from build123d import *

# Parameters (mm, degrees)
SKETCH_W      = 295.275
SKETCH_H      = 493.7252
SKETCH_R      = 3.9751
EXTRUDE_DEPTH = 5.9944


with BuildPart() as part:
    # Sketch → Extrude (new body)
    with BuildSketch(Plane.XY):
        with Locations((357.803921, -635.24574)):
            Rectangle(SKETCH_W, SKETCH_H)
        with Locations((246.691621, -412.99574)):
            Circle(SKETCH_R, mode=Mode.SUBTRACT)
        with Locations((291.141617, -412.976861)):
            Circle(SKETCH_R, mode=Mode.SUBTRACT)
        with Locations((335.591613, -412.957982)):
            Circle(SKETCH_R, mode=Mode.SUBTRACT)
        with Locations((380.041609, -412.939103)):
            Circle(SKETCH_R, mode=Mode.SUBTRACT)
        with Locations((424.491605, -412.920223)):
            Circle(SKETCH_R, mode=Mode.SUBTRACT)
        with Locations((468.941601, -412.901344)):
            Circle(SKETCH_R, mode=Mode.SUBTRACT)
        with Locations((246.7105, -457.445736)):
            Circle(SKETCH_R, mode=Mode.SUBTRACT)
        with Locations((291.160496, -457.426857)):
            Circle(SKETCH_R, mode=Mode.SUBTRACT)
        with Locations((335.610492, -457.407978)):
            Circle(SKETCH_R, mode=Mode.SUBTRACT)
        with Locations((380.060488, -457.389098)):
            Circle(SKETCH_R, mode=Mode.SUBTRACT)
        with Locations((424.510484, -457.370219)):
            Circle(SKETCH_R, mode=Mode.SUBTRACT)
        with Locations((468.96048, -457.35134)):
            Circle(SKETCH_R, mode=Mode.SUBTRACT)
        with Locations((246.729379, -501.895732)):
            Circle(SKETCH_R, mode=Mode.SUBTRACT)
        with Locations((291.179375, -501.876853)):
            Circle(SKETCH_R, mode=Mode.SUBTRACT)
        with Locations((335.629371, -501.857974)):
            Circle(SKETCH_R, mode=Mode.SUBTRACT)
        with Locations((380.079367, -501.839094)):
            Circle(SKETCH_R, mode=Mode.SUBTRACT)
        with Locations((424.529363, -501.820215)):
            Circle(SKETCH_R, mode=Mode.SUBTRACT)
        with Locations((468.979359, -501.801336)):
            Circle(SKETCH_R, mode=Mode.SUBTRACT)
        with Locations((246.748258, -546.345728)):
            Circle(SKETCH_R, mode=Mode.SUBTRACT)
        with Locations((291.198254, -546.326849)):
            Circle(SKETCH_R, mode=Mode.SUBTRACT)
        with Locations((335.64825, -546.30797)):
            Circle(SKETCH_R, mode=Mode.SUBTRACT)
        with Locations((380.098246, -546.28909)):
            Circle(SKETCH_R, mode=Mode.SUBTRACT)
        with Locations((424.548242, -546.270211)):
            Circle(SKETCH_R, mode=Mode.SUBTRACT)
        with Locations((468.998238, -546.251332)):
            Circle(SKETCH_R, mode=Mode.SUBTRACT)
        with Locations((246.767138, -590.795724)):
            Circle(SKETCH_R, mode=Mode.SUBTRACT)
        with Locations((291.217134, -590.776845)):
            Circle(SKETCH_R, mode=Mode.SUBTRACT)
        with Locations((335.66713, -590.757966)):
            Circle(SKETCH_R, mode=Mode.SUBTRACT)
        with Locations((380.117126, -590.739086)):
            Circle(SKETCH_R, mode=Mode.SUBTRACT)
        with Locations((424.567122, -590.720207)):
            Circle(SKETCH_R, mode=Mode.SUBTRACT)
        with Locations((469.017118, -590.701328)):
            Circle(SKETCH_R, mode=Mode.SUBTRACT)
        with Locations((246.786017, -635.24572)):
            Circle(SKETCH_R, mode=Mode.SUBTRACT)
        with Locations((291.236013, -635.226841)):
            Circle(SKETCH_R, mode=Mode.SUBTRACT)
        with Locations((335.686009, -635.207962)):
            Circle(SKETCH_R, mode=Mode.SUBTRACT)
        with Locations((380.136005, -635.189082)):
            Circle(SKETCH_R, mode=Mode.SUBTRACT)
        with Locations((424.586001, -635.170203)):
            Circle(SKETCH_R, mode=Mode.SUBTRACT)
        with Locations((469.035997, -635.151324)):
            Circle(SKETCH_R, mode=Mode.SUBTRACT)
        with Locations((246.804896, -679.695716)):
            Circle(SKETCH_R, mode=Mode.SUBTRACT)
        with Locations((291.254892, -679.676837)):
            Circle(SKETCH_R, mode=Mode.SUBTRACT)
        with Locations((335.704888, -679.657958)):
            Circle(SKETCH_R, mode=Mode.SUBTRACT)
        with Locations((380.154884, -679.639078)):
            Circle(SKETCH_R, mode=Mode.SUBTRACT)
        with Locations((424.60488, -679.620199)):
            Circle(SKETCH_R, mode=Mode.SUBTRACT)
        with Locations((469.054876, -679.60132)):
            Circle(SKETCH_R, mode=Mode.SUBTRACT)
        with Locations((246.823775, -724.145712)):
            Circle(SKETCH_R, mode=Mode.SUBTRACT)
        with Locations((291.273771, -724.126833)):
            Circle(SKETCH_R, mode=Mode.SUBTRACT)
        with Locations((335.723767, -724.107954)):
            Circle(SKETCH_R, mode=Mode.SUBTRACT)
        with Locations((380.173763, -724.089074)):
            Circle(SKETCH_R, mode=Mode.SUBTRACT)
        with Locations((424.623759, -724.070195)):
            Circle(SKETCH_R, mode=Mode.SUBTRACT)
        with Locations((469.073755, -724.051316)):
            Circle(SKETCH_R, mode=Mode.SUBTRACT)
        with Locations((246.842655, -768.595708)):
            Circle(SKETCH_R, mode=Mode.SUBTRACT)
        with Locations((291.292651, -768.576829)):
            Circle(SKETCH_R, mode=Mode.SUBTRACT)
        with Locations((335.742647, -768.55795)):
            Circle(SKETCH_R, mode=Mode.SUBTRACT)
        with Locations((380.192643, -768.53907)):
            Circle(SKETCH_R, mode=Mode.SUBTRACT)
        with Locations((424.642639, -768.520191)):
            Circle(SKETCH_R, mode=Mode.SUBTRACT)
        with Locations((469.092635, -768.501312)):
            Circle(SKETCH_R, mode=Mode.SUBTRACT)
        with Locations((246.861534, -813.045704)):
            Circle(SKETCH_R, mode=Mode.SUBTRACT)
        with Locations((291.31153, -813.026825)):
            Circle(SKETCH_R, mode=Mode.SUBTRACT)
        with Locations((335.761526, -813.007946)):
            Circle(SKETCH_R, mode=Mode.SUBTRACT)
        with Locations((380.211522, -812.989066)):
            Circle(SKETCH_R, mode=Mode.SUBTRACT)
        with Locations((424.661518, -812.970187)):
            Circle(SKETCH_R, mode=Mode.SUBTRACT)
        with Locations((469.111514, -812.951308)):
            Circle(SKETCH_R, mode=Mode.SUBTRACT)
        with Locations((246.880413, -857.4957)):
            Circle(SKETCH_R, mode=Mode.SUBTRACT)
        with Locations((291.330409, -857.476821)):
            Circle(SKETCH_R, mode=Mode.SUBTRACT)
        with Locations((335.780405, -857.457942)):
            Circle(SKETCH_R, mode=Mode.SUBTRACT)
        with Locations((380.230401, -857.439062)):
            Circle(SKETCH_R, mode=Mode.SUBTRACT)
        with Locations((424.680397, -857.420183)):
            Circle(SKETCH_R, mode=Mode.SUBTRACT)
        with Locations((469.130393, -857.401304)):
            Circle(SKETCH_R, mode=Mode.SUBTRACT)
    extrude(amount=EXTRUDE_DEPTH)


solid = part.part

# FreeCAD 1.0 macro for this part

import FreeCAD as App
import Part
import Sketcher
from FreeCAD import Vector
Q = App.Units.Quantity


def add_polygon(sketch, points):
    """Adds a closed chain of lines whose ends are joined by coincident constraints."""
    first, n = sketch.GeometryCount, len(points)
    for a, b in zip(points, points[1:] + points[:1]):
        sketch.addGeometry(Part.LineSegment(App.Vector(*a, 0), App.Vector(*b, 0)), False)
    for i in range(n):
        sketch.addConstraint(Sketcher.Constraint("Coincident", first + i, 2, first + (i + 1) % n, 1))

doc = App.newDocument("Part")
body = doc.addObject("PartDesign::Body", "Body")

# Sketch on XY plane
sketch1 = body.newObject("Sketcher::SketchObject", "Sketch")
sketch1.AttachmentSupport = (doc.getObject("XY_Plane"), [""])
sketch1.MapMode = "FlatFace"
add_polygon(sketch1, [(210.2, -388.4), (210.2, -882.1), (505.4, -882.1), (505.4, -388.4)])  # lines 0-3
sketch1.addGeometry(Part.Circle(Vector(246.9, -857.5, 0), Vector(0, 0, 1), 4), False)  # 4
sketch1.addGeometry(Part.Circle(Vector(246.9, -813, 0), Vector(0, 0, 1), 4), False)  # 5
sketch1.addGeometry(Part.Circle(Vector(291.3, -857.5, 0), Vector(0, 0, 1), 4), False)  # 6
sketch1.addGeometry(Part.Circle(Vector(291.3, -813, 0), Vector(0, 0, 1), 4), False)  # 7
sketch1.addGeometry(Part.Circle(Vector(246.8, -768.6, 0), Vector(0, 0, 1), 4), False)  # 8
sketch1.addGeometry(Part.Circle(Vector(291.3, -768.6, 0), Vector(0, 0, 1), 4), False)  # 9
sketch1.addGeometry(Part.Circle(Vector(335.8, -857.5, 0), Vector(0, 0, 1), 4), False)  # 10
sketch1.addGeometry(Part.Circle(Vector(335.8, -813, 0), Vector(0, 0, 1), 4), False)  # 11
sketch1.addGeometry(Part.Circle(Vector(335.7, -768.6, 0), Vector(0, 0, 1), 4), False)  # 12
sketch1.addGeometry(Part.Circle(Vector(246.8, -724.1, 0), Vector(0, 0, 1), 4), False)  # 13
sketch1.addGeometry(Part.Circle(Vector(291.3, -724.1, 0), Vector(0, 0, 1), 4), False)  # 14
sketch1.addGeometry(Part.Circle(Vector(246.8, -679.7, 0), Vector(0, 0, 1), 4), False)  # 15
sketch1.addGeometry(Part.Circle(Vector(246.8, -635.2, 0), Vector(0, 0, 1), 4), False)  # 16
sketch1.addGeometry(Part.Circle(Vector(291.3, -679.7, 0), Vector(0, 0, 1), 4), False)  # 17
sketch1.addGeometry(Part.Circle(Vector(291.2, -635.2, 0), Vector(0, 0, 1), 4), False)  # 18
sketch1.addGeometry(Part.Circle(Vector(335.7, -724.1, 0), Vector(0, 0, 1), 4), False)  # 19
sketch1.addGeometry(Part.Circle(Vector(335.7, -679.7, 0), Vector(0, 0, 1), 4), False)  # 20
sketch1.addGeometry(Part.Circle(Vector(335.7, -635.2, 0), Vector(0, 0, 1), 4), False)  # 21
sketch1.addGeometry(Part.Circle(Vector(380.2, -857.4, 0), Vector(0, 0, 1), 4), False)  # 22
sketch1.addGeometry(Part.Circle(Vector(380.2, -813, 0), Vector(0, 0, 1), 4), False)  # 23
sketch1.addGeometry(Part.Circle(Vector(380.2, -768.5, 0), Vector(0, 0, 1), 4), False)  # 24
sketch1.addGeometry(Part.Circle(Vector(424.7, -857.4, 0), Vector(0, 0, 1), 4), False)  # 25
sketch1.addGeometry(Part.Circle(Vector(424.7, -813, 0), Vector(0, 0, 1), 4), False)  # 26
sketch1.addGeometry(Part.Circle(Vector(469.1, -857.4, 0), Vector(0, 0, 1), 4), False)  # 27
sketch1.addGeometry(Part.Circle(Vector(469.1, -813, 0), Vector(0, 0, 1), 4), False)  # 28
sketch1.addGeometry(Part.Circle(Vector(424.6, -768.5, 0), Vector(0, 0, 1), 4), False)  # 29
sketch1.addGeometry(Part.Circle(Vector(469.1, -768.5, 0), Vector(0, 0, 1), 4), False)  # 30
sketch1.addGeometry(Part.Circle(Vector(380.2, -724.1, 0), Vector(0, 0, 1), 4), False)  # 31
sketch1.addGeometry(Part.Circle(Vector(380.2, -679.6, 0), Vector(0, 0, 1), 4), False)  # 32
sketch1.addGeometry(Part.Circle(Vector(424.6, -724.1, 0), Vector(0, 0, 1), 4), False)  # 33
sketch1.addGeometry(Part.Circle(Vector(469.1, -724.1, 0), Vector(0, 0, 1), 4), False)  # 34
sketch1.addGeometry(Part.Circle(Vector(424.6, -679.6, 0), Vector(0, 0, 1), 4), False)  # 35
sketch1.addGeometry(Part.Circle(Vector(469.1, -679.6, 0), Vector(0, 0, 1), 4), False)  # 36
sketch1.addGeometry(Part.Circle(Vector(246.8, -590.8, 0), Vector(0, 0, 1), 4), False)  # 37
sketch1.addGeometry(Part.Circle(Vector(291.2, -590.8, 0), Vector(0, 0, 1), 4), False)  # 38
sketch1.addGeometry(Part.Circle(Vector(246.7, -546.3, 0), Vector(0, 0, 1), 4), False)  # 39
sketch1.addGeometry(Part.Circle(Vector(291.2, -546.3, 0), Vector(0, 0, 1), 4), False)  # 40
sketch1.addGeometry(Part.Circle(Vector(335.7, -590.8, 0), Vector(0, 0, 1), 4), False)  # 41
sketch1.addGeometry(Part.Circle(Vector(335.6, -546.3, 0), Vector(0, 0, 1), 4), False)  # 42
sketch1.addGeometry(Part.Circle(Vector(246.7, -501.9, 0), Vector(0, 0, 1), 4), False)  # 43
sketch1.addGeometry(Part.Circle(Vector(291.2, -501.9, 0), Vector(0, 0, 1), 4), False)  # 44
sketch1.addGeometry(Part.Circle(Vector(246.7, -457.4, 0), Vector(0, 0, 1), 4), False)  # 45
sketch1.addGeometry(Part.Circle(Vector(246.7, -413, 0), Vector(0, 0, 1), 4), False)  # 46
sketch1.addGeometry(Part.Circle(Vector(291.2, -457.4, 0), Vector(0, 0, 1), 4), False)  # 47
sketch1.addGeometry(Part.Circle(Vector(291.1, -413, 0), Vector(0, 0, 1), 4), False)  # 48
sketch1.addGeometry(Part.Circle(Vector(335.6, -501.9, 0), Vector(0, 0, 1), 4), False)  # 49
sketch1.addGeometry(Part.Circle(Vector(335.6, -457.4, 0), Vector(0, 0, 1), 4), False)  # 50
sketch1.addGeometry(Part.Circle(Vector(335.6, -413, 0), Vector(0, 0, 1), 4), False)  # 51
sketch1.addGeometry(Part.Circle(Vector(380.1, -635.2, 0), Vector(0, 0, 1), 4), False)  # 52
sketch1.addGeometry(Part.Circle(Vector(380.1, -590.7, 0), Vector(0, 0, 1), 4), False)  # 53
sketch1.addGeometry(Part.Circle(Vector(380.1, -546.3, 0), Vector(0, 0, 1), 4), False)  # 54
sketch1.addGeometry(Part.Circle(Vector(424.6, -635.2, 0), Vector(0, 0, 1), 4), False)  # 55
sketch1.addGeometry(Part.Circle(Vector(424.6, -590.7, 0), Vector(0, 0, 1), 4), False)  # 56
sketch1.addGeometry(Part.Circle(Vector(469, -635.2, 0), Vector(0, 0, 1), 4), False)  # 57
sketch1.addGeometry(Part.Circle(Vector(469, -590.7, 0), Vector(0, 0, 1), 4), False)  # 58
sketch1.addGeometry(Part.Circle(Vector(424.5, -546.3, 0), Vector(0, 0, 1), 4), False)  # 59
sketch1.addGeometry(Part.Circle(Vector(469, -546.3, 0), Vector(0, 0, 1), 4), False)  # 60
sketch1.addGeometry(Part.Circle(Vector(380.1, -501.8, 0), Vector(0, 0, 1), 4), False)  # 61
sketch1.addGeometry(Part.Circle(Vector(380.1, -457.4, 0), Vector(0, 0, 1), 4), False)  # 62
sketch1.addGeometry(Part.Circle(Vector(380, -412.9, 0), Vector(0, 0, 1), 4), False)  # 63
sketch1.addGeometry(Part.Circle(Vector(424.5, -501.8, 0), Vector(0, 0, 1), 4), False)  # 64
sketch1.addGeometry(Part.Circle(Vector(469, -501.8, 0), Vector(0, 0, 1), 4), False)  # 65
sketch1.addGeometry(Part.Circle(Vector(424.5, -457.4, 0), Vector(0, 0, 1), 4), False)  # 66
sketch1.addGeometry(Part.Circle(Vector(424.5, -412.9, 0), Vector(0, 0, 1), 4), False)  # 67
sketch1.addGeometry(Part.Circle(Vector(469, -457.4, 0), Vector(0, 0, 1), 4), False)  # 68
sketch1.addGeometry(Part.Circle(Vector(468.9, -412.9, 0), Vector(0, 0, 1), 4), False)  # 69
sketch1.addConstraint([
    Sketcher.Constraint("Vertical", 0),
    Sketcher.Constraint("Horizontal", 1),
    Sketcher.Constraint("Vertical", 2),
    Sketcher.Constraint("Horizontal", 3),
    Sketcher.Constraint("Equal", 4, 5),
    Sketcher.Constraint("Equal", 5, 6),
    Sketcher.Constraint("Equal", 6, 7),
    Sketcher.Constraint("Equal", 7, 8),
    Sketcher.Constraint("Equal", 8, 9),
    Sketcher.Constraint("Equal", 9, 10),
    Sketcher.Constraint("Equal", 10, 11),
    Sketcher.Constraint("Equal", 11, 12),
    Sketcher.Constraint("Equal", 12, 13),
    Sketcher.Constraint("Equal", 13, 14),
    Sketcher.Constraint("Equal", 14, 15),
    Sketcher.Constraint("Equal", 15, 16),
    Sketcher.Constraint("Equal", 16, 17),
    Sketcher.Constraint("Equal", 17, 18),
    Sketcher.Constraint("Equal", 18, 19),
    Sketcher.Constraint("Equal", 19, 20),
    Sketcher.Constraint("Equal", 20, 21),
    Sketcher.Constraint("Equal", 21, 22),
    Sketcher.Constraint("Equal", 22, 23),
    Sketcher.Constraint("Equal", 23, 24),
    Sketcher.Constraint("Equal", 24, 25),
    Sketcher.Constraint("Equal", 25, 26),
    Sketcher.Constraint("Equal", 26, 27),
    Sketcher.Constraint("Equal", 27, 28),
    Sketcher.Constraint("Equal", 28, 29),
    Sketcher.Constraint("Equal", 29, 30),
    Sketcher.Constraint("Equal", 30, 31),
    Sketcher.Constraint("Equal", 31, 32),
    Sketcher.Constraint("Equal", 32, 33),
    Sketcher.Constraint("Equal", 33, 34),
    Sketcher.Constraint("Equal", 34, 35),
    Sketcher.Constraint("Equal", 35, 36),
    Sketcher.Constraint("Equal", 36, 37),
    Sketcher.Constraint("Equal", 37, 38),
    Sketcher.Constraint("Equal", 38, 39),
    Sketcher.Constraint("Equal", 39, 40),
    Sketcher.Constraint("Equal", 40, 41),
    Sketcher.Constraint("Equal", 41, 42),
    Sketcher.Constraint("Equal", 42, 43),
    Sketcher.Constraint("Equal", 43, 44),
    Sketcher.Constraint("Equal", 44, 45),
    Sketcher.Constraint("Equal", 45, 46),
    Sketcher.Constraint("Equal", 46, 47),
    Sketcher.Constraint("Equal", 47, 48),
    Sketcher.Constraint("Equal", 48, 49),
    Sketcher.Constraint("Equal", 49, 50),
    Sketcher.Constraint("Equal", 50, 51),
    Sketcher.Constraint("Equal", 51, 52),
    Sketcher.Constraint("Equal", 52, 53),
    Sketcher.Constraint("Equal", 53, 54),
    Sketcher.Constraint("Equal", 54, 55),
    Sketcher.Constraint("Equal", 55, 56),
    Sketcher.Constraint("Equal", 56, 57),
    Sketcher.Constraint("Equal", 57, 58),
    Sketcher.Constraint("Equal", 58, 59),
    Sketcher.Constraint("Equal", 59, 60),
    Sketcher.Constraint("Equal", 60, 61),
    Sketcher.Constraint("Equal", 61, 62),
    Sketcher.Constraint("Equal", 62, 63),
    Sketcher.Constraint("Equal", 63, 64),
    Sketcher.Constraint("Equal", 64, 65),
    Sketcher.Constraint("Equal", 65, 66),
    Sketcher.Constraint("Equal", 66, 67),
    Sketcher.Constraint("Equal", 67, 68),
    Sketcher.Constraint("Equal", 68, 69),
    Sketcher.Constraint("Diameter", 4, Q("0.313 in")),
    Sketcher.Constraint("DistanceX", 1, 1, 1, 2, Q("11.625 in")),
    Sketcher.Constraint("DistanceY", 0, 2, 0, 1, Q("19.438 in")),
    Sketcher.Constraint("DistanceY", 25, 3, -1, 1, Q("33.7567001 in")),
    Sketcher.Constraint("DistanceY", 4, 3, -1, 1, Q("857.4957 mm")),
    Sketcher.Constraint("DistanceX", -1, 1, 22, 3, Q("380.230401 mm")),
    Sketcher.Constraint("DistanceY", 35, 3, -1, 1, Q("679.620199 mm")),
    Sketcher.Constraint("DistanceX", -1, 1, 45, 3, Q("246.7105 mm")),
    Sketcher.Constraint("DistanceX", -1, 1, 55, 3, Q("424.586001 mm")),
    Sketcher.Constraint("DistanceY", 62, 3, -1, 1, Q("457.389098 mm")),
    Sketcher.Constraint("DistanceX", -1, 1, 69, 3, Q("468.941601 mm")),
    Sketcher.Constraint("DistanceX", -1, 1, 6, 3, Q("291.330409 mm")),
    Sketcher.Constraint("DistanceY", 6, 3, -1, 1, Q("857.476821 mm")),
    Sketcher.Constraint("DistanceX", -1, 1, 7, 3, Q("291.31153 mm")),
    Sketcher.Constraint("DistanceX", -1, 1, 9, 3, Q("291.292651 mm")),
    Sketcher.Constraint("DistanceY", 9, 3, -1, 1, Q("768.576829 mm")),
    Sketcher.Constraint("DistanceY", 10, 3, -1, 1, Q("857.457942 mm")),
    Sketcher.Constraint("DistanceY", 12, 3, -1, 1, Q("768.55795 mm")),
    Sketcher.Constraint("DistanceY", 13, 3, -1, 1, Q("724.145712 mm")),
    Sketcher.Constraint("DistanceX", -1, 1, 14, 3, Q("291.273771 mm")),
    Sketcher.Constraint("DistanceY", 16, 3, -1, 1, Q("635.24572 mm")),
    Sketcher.Constraint("DistanceX", -1, 1, 17, 3, Q("291.254892 mm")),
    Sketcher.Constraint("DistanceY", 18, 3, -1, 1, Q("635.226841 mm")),
    Sketcher.Constraint("DistanceX", -1, 1, 20, 3, Q("335.704888 mm")),
    Sketcher.Constraint("DistanceY", 20, 3, -1, 1, Q("679.657958 mm")),
    Sketcher.Constraint("DistanceX", -1, 1, 21, 3, Q("335.686009 mm")),
    Sketcher.Constraint("DistanceY", 21, 3, -1, 1, Q("635.207962 mm")),
    Sketcher.Constraint("DistanceY", 22, 3, -1, 1, Q("857.439062 mm")),
    Sketcher.Constraint("DistanceX", -1, 1, 23, 3, Q("380.211522 mm")),
    Sketcher.Constraint("DistanceY", 24, 3, -1, 1, Q("768.53907 mm")),
    Sketcher.Constraint("DistanceX", -1, 1, 26, 3, Q("424.661518 mm")),
    Sketcher.Constraint("DistanceY", 28, 3, -1, 1, Q("812.951308 mm")),
    Sketcher.Constraint("DistanceX", -1, 1, 29, 3, Q("424.642639 mm")),
    Sketcher.Constraint("DistanceY", 29, 3, -1, 1, Q("768.520191 mm")),
    Sketcher.Constraint("DistanceY", 30, 3, -1, 1, Q("768.501312 mm")),
    Sketcher.Constraint("DistanceY", 32, 3, -1, 1, Q("679.639078 mm")),
    Sketcher.Constraint("DistanceX", -1, 1, 33, 3, Q("424.623759 mm")),
    Sketcher.Constraint("DistanceX", -1, 1, 35, 3, Q("424.60488 mm")),
    Sketcher.Constraint("DistanceY", 36, 3, -1, 1, Q("679.60132 mm")),
    Sketcher.Constraint("DistanceX", -1, 1, 39, 3, Q("246.748258 mm")),
    Sketcher.Constraint("DistanceY", 39, 3, -1, 1, Q("546.345728 mm")),
    Sketcher.Constraint("DistanceY", 40, 3, -1, 1, Q("546.326849 mm")),
    Sketcher.Constraint("DistanceX", -1, 1, 41, 3, Q("335.66713 mm")),
    Sketcher.Constraint("DistanceX", -1, 1, 42, 3, Q("335.64825 mm")),
    Sketcher.Constraint("DistanceY", 42, 3, -1, 1, Q("546.30797 mm")),
    Sketcher.Constraint("DistanceX", -1, 1, 43, 3, Q("246.729379 mm")),
    Sketcher.Constraint("DistanceY", 43, 3, -1, 1, Q("501.895732 mm")),
    Sketcher.Constraint("DistanceX", -1, 1, 46, 3, Q("246.691621 mm")),
    Sketcher.Constraint("DistanceY", 46, 3, -1, 1, Q("412.99574 mm")),
    Sketcher.Constraint("DistanceY", 48, 3, -1, 1, Q("412.976861 mm")),
    Sketcher.Constraint("DistanceX", -1, 1, 49, 3, Q("335.629371 mm")),
    Sketcher.Constraint("DistanceX", -1, 1, 50, 3, Q("335.610492 mm")),
    Sketcher.Constraint("DistanceY", 50, 3, -1, 1, Q("457.407978 mm")),
    Sketcher.Constraint("DistanceY", 51, 3, -1, 1, Q("412.957982 mm")),
    Sketcher.Constraint("DistanceY", 52, 3, -1, 1, Q("635.189082 mm")),
    Sketcher.Constraint("DistanceY", 54, 3, -1, 1, Q("546.28909 mm")),
    Sketcher.Constraint("DistanceX", -1, 1, 56, 3, Q("424.567122 mm")),
    Sketcher.Constraint("DistanceX", -1, 1, 58, 3, Q("469.017118 mm")),
    Sketcher.Constraint("DistanceY", 58, 3, -1, 1, Q("590.701328 mm")),
    Sketcher.Constraint("DistanceX", -1, 1, 59, 3, Q("424.548242 mm")),
    Sketcher.Constraint("DistanceY", 59, 3, -1, 1, Q("546.270211 mm")),
    Sketcher.Constraint("DistanceX", -1, 1, 60, 3, Q("468.998238 mm")),
    Sketcher.Constraint("DistanceY", 60, 3, -1, 1, Q("546.251332 mm")),
    Sketcher.Constraint("DistanceX", -1, 1, 62, 3, Q("380.060488 mm")),
    Sketcher.Constraint("DistanceX", -1, 1, 63, 3, Q("380.041609 mm")),
    Sketcher.Constraint("DistanceX", -1, 1, 65, 3, Q("468.979359 mm")),
    Sketcher.Constraint("DistanceY", 66, 3, -1, 1, Q("457.370219 mm")),
    Sketcher.Constraint("DistanceX", -1, 1, 68, 3, Q("468.96048 mm")),
    Sketcher.Constraint("DistanceY", 68, 3, -1, 1, Q("457.35134 mm")),
    Sketcher.Constraint("DistanceX", -1, 1, 0, 2, Q("210.166421 mm")),
    Sketcher.Constraint("DistanceY", 0, 2, -1, 1, Q("882.10834 mm")),
    Sketcher.Constraint("DistanceX", -1, 1, 4, 3, Q("246.880413 mm")),
    Sketcher.Constraint("DistanceX", -1, 1, 5, 3, Q("246.861534 mm")),
    Sketcher.Constraint("DistanceY", 5, 3, -1, 1, Q("813.045704 mm")),
    Sketcher.Constraint("DistanceY", 7, 3, -1, 1, Q("813.026825 mm")),
    Sketcher.Constraint("DistanceX", -1, 1, 8, 3, Q("246.842655 mm")),
    Sketcher.Constraint("DistanceY", 8, 3, -1, 1, Q("768.595708 mm")),
    Sketcher.Constraint("DistanceX", -1, 1, 10, 3, Q("335.780405 mm")),
    Sketcher.Constraint("DistanceX", -1, 1, 11, 3, Q("335.761526 mm")),
    Sketcher.Constraint("DistanceY", 11, 3, -1, 1, Q("813.007946 mm")),
    Sketcher.Constraint("DistanceX", -1, 1, 12, 3, Q("335.742647 mm")),
    Sketcher.Constraint("DistanceX", -1, 1, 13, 3, Q("246.823775 mm")),
    Sketcher.Constraint("DistanceY", 14, 3, -1, 1, Q("724.126833 mm")),
    Sketcher.Constraint("DistanceX", -1, 1, 15, 3, Q("246.804896 mm")),
    Sketcher.Constraint("DistanceY", 15, 3, -1, 1, Q("679.695716 mm")),
    Sketcher.Constraint("DistanceX", -1, 1, 16, 3, Q("246.786017 mm")),
    Sketcher.Constraint("DistanceY", 17, 3, -1, 1, Q("679.676837 mm")),
    Sketcher.Constraint("DistanceX", -1, 1, 18, 3, Q("291.236013 mm")),
    Sketcher.Constraint("DistanceX", -1, 1, 19, 3, Q("335.723767 mm")),
    Sketcher.Constraint("DistanceY", 19, 3, -1, 1, Q("724.107954 mm")),
    Sketcher.Constraint("DistanceY", 23, 3, -1, 1, Q("812.989066 mm")),
    Sketcher.Constraint("DistanceX", -1, 1, 24, 3, Q("380.192643 mm")),
    Sketcher.Constraint("DistanceX", -1, 1, 25, 3, Q("424.680397 mm")),
    Sketcher.Constraint("DistanceY", 26, 3, -1, 1, Q("812.970187 mm")),
    Sketcher.Constraint("DistanceX", -1, 1, 27, 3, Q("469.130393 mm")),
    Sketcher.Constraint("DistanceY", 27, 3, -1, 1, Q("857.401304 mm")),
    Sketcher.Constraint("DistanceX", -1, 1, 28, 3, Q("469.111514 mm")),
    Sketcher.Constraint("DistanceX", -1, 1, 30, 3, Q("469.092635 mm")),
    Sketcher.Constraint("DistanceX", -1, 1, 31, 3, Q("380.173763 mm")),
    Sketcher.Constraint("DistanceY", 31, 3, -1, 1, Q("724.089074 mm")),
    Sketcher.Constraint("DistanceX", -1, 1, 32, 3, Q("380.154884 mm")),
    Sketcher.Constraint("DistanceY", 33, 3, -1, 1, Q("724.070195 mm")),
    Sketcher.Constraint("DistanceX", -1, 1, 34, 3, Q("469.073755 mm")),
    Sketcher.Constraint("DistanceY", 34, 3, -1, 1, Q("724.051316 mm")),
    Sketcher.Constraint("DistanceX", -1, 1, 36, 3, Q("469.054876 mm")),
    Sketcher.Constraint("DistanceX", -1, 1, 37, 3, Q("246.767138 mm")),
    Sketcher.Constraint("DistanceY", 37, 3, -1, 1, Q("590.795724 mm")),
    Sketcher.Constraint("DistanceX", -1, 1, 38, 3, Q("291.217134 mm")),
    Sketcher.Constraint("DistanceY", 38, 3, -1, 1, Q("590.776845 mm")),
    Sketcher.Constraint("DistanceX", -1, 1, 40, 3, Q("291.198254 mm")),
    Sketcher.Constraint("DistanceY", 41, 3, -1, 1, Q("590.757966 mm")),
    Sketcher.Constraint("DistanceX", -1, 1, 44, 3, Q("291.179375 mm")),
    Sketcher.Constraint("DistanceY", 44, 3, -1, 1, Q("501.876853 mm")),
    Sketcher.Constraint("DistanceY", 45, 3, -1, 1, Q("457.445736 mm")),
    Sketcher.Constraint("DistanceX", -1, 1, 47, 3, Q("291.160496 mm")),
    Sketcher.Constraint("DistanceY", 47, 3, -1, 1, Q("457.426857 mm")),
    Sketcher.Constraint("DistanceX", -1, 1, 48, 3, Q("291.141617 mm")),
    Sketcher.Constraint("DistanceY", 49, 3, -1, 1, Q("501.857974 mm")),
    Sketcher.Constraint("DistanceX", -1, 1, 51, 3, Q("335.591613 mm")),
    Sketcher.Constraint("DistanceX", -1, 1, 52, 3, Q("380.136005 mm")),
    Sketcher.Constraint("DistanceX", -1, 1, 53, 3, Q("380.117126 mm")),
    Sketcher.Constraint("DistanceY", 53, 3, -1, 1, Q("590.739086 mm")),
    Sketcher.Constraint("DistanceX", -1, 1, 54, 3, Q("380.098246 mm")),
    Sketcher.Constraint("DistanceY", 55, 3, -1, 1, Q("635.170203 mm")),
    Sketcher.Constraint("DistanceY", 56, 3, -1, 1, Q("590.720207 mm")),
    Sketcher.Constraint("DistanceX", -1, 1, 57, 3, Q("469.035997 mm")),
    Sketcher.Constraint("DistanceY", 57, 3, -1, 1, Q("635.151324 mm")),
    Sketcher.Constraint("DistanceX", -1, 1, 61, 3, Q("380.079367 mm")),
    Sketcher.Constraint("DistanceY", 61, 3, -1, 1, Q("501.839094 mm")),
    Sketcher.Constraint("DistanceY", 63, 3, -1, 1, Q("412.939103 mm")),
    Sketcher.Constraint("DistanceX", -1, 1, 64, 3, Q("424.529363 mm")),
    Sketcher.Constraint("DistanceY", 64, 3, -1, 1, Q("501.820215 mm")),
    Sketcher.Constraint("DistanceY", 65, 3, -1, 1, Q("501.801336 mm")),
    Sketcher.Constraint("DistanceX", -1, 1, 66, 3, Q("424.510484 mm")),
    Sketcher.Constraint("DistanceX", -1, 1, 67, 3, Q("424.491605 mm")),
    Sketcher.Constraint("DistanceY", 67, 3, -1, 1, Q("412.920223 mm")),
    Sketcher.Constraint("DistanceY", 69, 3, -1, 1, Q("412.901344 mm")),
])
pad1 = body.newObject("PartDesign::Pad", "Pad")
pad1.Profile = sketch1
pad1.Length = Q("0.236 in")

doc.recompute()
